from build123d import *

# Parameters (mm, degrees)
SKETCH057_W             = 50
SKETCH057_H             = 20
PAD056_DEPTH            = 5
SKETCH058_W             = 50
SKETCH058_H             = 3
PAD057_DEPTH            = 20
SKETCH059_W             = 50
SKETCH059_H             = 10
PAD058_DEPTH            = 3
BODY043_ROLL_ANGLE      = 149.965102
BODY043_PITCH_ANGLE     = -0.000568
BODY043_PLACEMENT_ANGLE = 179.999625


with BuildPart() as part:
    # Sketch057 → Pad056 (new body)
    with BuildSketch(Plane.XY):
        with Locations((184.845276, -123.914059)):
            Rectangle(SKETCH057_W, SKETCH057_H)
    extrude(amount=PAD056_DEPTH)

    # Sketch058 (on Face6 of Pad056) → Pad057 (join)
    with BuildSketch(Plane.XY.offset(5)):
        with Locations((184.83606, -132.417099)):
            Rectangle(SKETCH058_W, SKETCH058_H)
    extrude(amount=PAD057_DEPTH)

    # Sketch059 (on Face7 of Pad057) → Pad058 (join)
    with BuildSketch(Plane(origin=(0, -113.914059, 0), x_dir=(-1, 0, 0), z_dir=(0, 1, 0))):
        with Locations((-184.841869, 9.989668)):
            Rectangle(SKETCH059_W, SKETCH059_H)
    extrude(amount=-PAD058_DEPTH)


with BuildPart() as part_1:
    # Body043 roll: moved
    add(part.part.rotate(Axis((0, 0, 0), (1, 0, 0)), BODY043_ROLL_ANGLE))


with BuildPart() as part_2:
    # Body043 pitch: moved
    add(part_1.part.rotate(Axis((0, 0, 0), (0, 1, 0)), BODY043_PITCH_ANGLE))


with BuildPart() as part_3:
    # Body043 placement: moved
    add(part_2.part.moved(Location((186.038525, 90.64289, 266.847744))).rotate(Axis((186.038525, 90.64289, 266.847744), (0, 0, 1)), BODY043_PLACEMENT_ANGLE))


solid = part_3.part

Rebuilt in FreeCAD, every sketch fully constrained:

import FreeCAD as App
import Part
import Sketcher
from FreeCAD import Vector

doc = App.newDocument("Part")
body = doc.addObject("PartDesign::Body", "Body")

# Sketch on XY plane
sketch1 = doc.addObject("Sketcher::SketchObject", "Sketch")
body.addObject(sketch1)
sketch1.AttachmentSupport = (doc.XY_Plane, [""])
sketch1.MapMode = "FlatFace"
sketch1.addGeometry(Part.LineSegment(Vector(160, -114, 0), Vector(160, -134, 0)), False)
sketch1.addGeometry(Part.LineSegment(Vector(160, -134, 0), Vector(210, -134, 0)), False)
sketch1.addGeometry(Part.LineSegment(Vector(210, -134, 0), Vector(210, -114, 0)), False)
sketch1.addGeometry(Part.LineSegment(Vector(210, -114, 0), Vector(160, -114, 0)), False)
sketch1.addConstraint(Sketcher.Constraint("Coincident", 0, 2, 1, 1))
sketch1.addConstraint(Sketcher.Constraint("Coincident", 1, 2, 2, 1))
sketch1.addConstraint(Sketcher.Constraint("Coincident", 2, 2, 3, 1))
sketch1.addConstraint(Sketcher.Constraint("Coincident", 3, 2, 0, 1))
sketch1.addConstraint(Sketcher.Constraint("Vertical", 0))
sketch1.addConstraint(Sketcher.Constraint("Horizontal", 1))
sketch1.addConstraint(Sketcher.Constraint("Vertical", 2))
sketch1.addConstraint(Sketcher.Constraint("Horizontal", 3))
sketch1.addConstraint(Sketcher.Constraint("DistanceX", 1, 1, 1, 2, 50.0))
sketch1.addConstraint(Sketcher.Constraint("DistanceY", 0, 2, 0, 1, 20.0))
sketch1.addConstraint(Sketcher.Constraint("DistanceY", 0, 2, -1, 1, 133.914059))
sketch1.addConstraint(Sketcher.Constraint("DistanceX", -1, 1, 0, 2, 159.845276))
pad1 = doc.addObject("PartDesign::Pad", "Pad")
body.addObject(pad1)
pad1.Profile = sketch1
pad1.Length = 5

# Sketch on XY plane
sketch2 = doc.addObject("Sketcher::SketchObject", "Sketch001")
body.addObject(sketch2)
sketch2.AttachmentSupport = (doc.XY_Plane, [""])
sketch2.MapMode = "FlatFace"
sketch2.AttachmentOffset = App.Placement(Vector(0, 0, 5), App.Rotation())
sketch2.addGeometry(Part.LineSegment(Vector(159.8, -130.9, 0), Vector(159.8, -133.9, 0)), False)
sketch2.addGeometry(Part.LineSegment(Vector(159.8, -133.9, 0), Vector(209.8, -133.9, 0)), False)
sketch2.addGeometry(Part.LineSegment(Vector(209.8, -133.9, 0), Vector(209.8, -130.9, 0)), False)
sketch2.addGeometry(Part.LineSegment(Vector(209.8, -130.9, 0), Vector(159.8, -130.9, 0)), False)
sketch2.addConstraint(Sketcher.Constraint("Coincident", 0, 2, 1, 1))
sketch2.addConstraint(Sketcher.Constraint("Coincident", 1, 2, 2, 1))
sketch2.addConstraint(Sketcher.Constraint("Coincident", 2, 2, 3, 1))
sketch2.addConstraint(Sketcher.Constraint("Coincident", 3, 2, 0, 1))
sketch2.addConstraint(Sketcher.Constraint("Vertical", 0))
sketch2.addConstraint(Sketcher.Constraint("Horizontal", 1))
sketch2.addConstraint(Sketcher.Constraint("Vertical", 2))
sketch2.addConstraint(Sketcher.Constraint("Horizontal", 3))
sketch2.addConstraint(Sketcher.Constraint("DistanceX", 1, 1, 1, 2, 50.0))
sketch2.addConstraint(Sketcher.Constraint("DistanceY", 0, 2, 0, 1, 3.0))
sketch2.addConstraint(Sketcher.Constraint("DistanceY", 0, 2, -1, 1, 133.917099))
sketch2.addConstraint(Sketcher.Constraint("DistanceX", -1, 1, 0, 2, 159.83606))
pad2 = doc.addObject("PartDesign::Pad", "Pad001")
body.addObject(pad2)
pad2.Profile = sketch2
pad2.Length = 20

# Sketch on XZ plane
sketch3 = doc.addObject("Sketcher::SketchObject", "Sketch002")
body.addObject(sketch3)
sketch3.AttachmentSupport = (doc.XZ_Plane, [""])
sketch3.MapMode = "FlatFace"
sketch3.AttachmentOffset = App.Placement(Vector(0, 0, 113.914059), App.Rotation())
sketch3.addGeometry(Part.LineSegment(Vector(210, 15, 0), Vector(210, 5, 0)), False)
sketch3.addGeometry(Part.LineSegment(Vector(210, 5, 0), Vector(160, 5, 0)), False)
sketch3.addGeometry(Part.LineSegment(Vector(160, 5, 0), Vector(160, 15, 0)), False)
sketch3.addGeometry(Part.LineSegment(Vector(160, 15, 0), Vector(210, 15, 0)), False)
sketch3.addConstraint(Sketcher.Constraint("Coincident", 0, 2, 1, 1))
sketch3.addConstraint(Sketcher.Constraint("Coincident", 1, 2, 2, 1))
sketch3.addConstraint(Sketcher.Constraint("Coincident", 2, 2, 3, 1))
sketch3.addConstraint(Sketcher.Constraint("Coincident", 3, 2, 0, 1))
sketch3.addConstraint(Sketcher.Constraint("Vertical", 0))
sketch3.addConstraint(Sketcher.Constraint("Horizontal", 1))
sketch3.addConstraint(Sketcher.Constraint("Vertical", 2))
sketch3.addConstraint(Sketcher.Constraint("Horizontal", 3))
sketch3.addConstraint(Sketcher.Constraint("DistanceX", 1, 2, 1, 1, 50.0))
sketch3.addConstraint(Sketcher.Constraint("DistanceY", 0, 2, 0, 1, 10.0))
sketch3.addConstraint(Sketcher.Constraint("DistanceX", -1, 1, 0, 2, 209.841869))
sketch3.addConstraint(Sketcher.Constraint("DistanceY", -1, 1, 0, 2, 4.989668))
pad3 = doc.addObject("PartDesign::Pad", "Pad002")
body.addObject(pad3)
pad3.Profile = sketch3
pad3.Length = 3
body2 = doc.addObject("PartDesign::Body", "Body001")
doc.recompute()

body.Placement = App.Placement(Vector(0, 0, 0), App.Rotation(Vector(1, 0, 0), 149.965102))
boolean = doc.addObject("PartDesign::Boolean", "Boolean")
body2.addObject(boolean)
boolean.Type = "Fuse"
boolean.addObjects([body])
body3 = doc.addObject("PartDesign::Body", "Body002")
doc.recompute()

body2.Placement = App.Placement(Vector(0, 0, 0), App.Rotation(Vector(0, 1, 0), 359.999432))
boolean2 = doc.addObject("PartDesign::Boolean", "Boolean001")
body3.addObject(boolean2)
boolean2.Type = "Fuse"
boolean2.addObjects([body2])
body4 = doc.addObject("PartDesign::Body", "Body003")
doc.recompute()

body3.Placement = App.Placement(Vector(186.038525, 90.64289, 266.847744), App.Rotation(Vector(0, 0, 1), 179.999625))
boolean3 = doc.addObject("PartDesign::Boolean", "Boolean002")
body4.addObject(boolean3)
boolean3.Type = "Fuse"
boolean3.addObjects([body3])

doc.recompute()
